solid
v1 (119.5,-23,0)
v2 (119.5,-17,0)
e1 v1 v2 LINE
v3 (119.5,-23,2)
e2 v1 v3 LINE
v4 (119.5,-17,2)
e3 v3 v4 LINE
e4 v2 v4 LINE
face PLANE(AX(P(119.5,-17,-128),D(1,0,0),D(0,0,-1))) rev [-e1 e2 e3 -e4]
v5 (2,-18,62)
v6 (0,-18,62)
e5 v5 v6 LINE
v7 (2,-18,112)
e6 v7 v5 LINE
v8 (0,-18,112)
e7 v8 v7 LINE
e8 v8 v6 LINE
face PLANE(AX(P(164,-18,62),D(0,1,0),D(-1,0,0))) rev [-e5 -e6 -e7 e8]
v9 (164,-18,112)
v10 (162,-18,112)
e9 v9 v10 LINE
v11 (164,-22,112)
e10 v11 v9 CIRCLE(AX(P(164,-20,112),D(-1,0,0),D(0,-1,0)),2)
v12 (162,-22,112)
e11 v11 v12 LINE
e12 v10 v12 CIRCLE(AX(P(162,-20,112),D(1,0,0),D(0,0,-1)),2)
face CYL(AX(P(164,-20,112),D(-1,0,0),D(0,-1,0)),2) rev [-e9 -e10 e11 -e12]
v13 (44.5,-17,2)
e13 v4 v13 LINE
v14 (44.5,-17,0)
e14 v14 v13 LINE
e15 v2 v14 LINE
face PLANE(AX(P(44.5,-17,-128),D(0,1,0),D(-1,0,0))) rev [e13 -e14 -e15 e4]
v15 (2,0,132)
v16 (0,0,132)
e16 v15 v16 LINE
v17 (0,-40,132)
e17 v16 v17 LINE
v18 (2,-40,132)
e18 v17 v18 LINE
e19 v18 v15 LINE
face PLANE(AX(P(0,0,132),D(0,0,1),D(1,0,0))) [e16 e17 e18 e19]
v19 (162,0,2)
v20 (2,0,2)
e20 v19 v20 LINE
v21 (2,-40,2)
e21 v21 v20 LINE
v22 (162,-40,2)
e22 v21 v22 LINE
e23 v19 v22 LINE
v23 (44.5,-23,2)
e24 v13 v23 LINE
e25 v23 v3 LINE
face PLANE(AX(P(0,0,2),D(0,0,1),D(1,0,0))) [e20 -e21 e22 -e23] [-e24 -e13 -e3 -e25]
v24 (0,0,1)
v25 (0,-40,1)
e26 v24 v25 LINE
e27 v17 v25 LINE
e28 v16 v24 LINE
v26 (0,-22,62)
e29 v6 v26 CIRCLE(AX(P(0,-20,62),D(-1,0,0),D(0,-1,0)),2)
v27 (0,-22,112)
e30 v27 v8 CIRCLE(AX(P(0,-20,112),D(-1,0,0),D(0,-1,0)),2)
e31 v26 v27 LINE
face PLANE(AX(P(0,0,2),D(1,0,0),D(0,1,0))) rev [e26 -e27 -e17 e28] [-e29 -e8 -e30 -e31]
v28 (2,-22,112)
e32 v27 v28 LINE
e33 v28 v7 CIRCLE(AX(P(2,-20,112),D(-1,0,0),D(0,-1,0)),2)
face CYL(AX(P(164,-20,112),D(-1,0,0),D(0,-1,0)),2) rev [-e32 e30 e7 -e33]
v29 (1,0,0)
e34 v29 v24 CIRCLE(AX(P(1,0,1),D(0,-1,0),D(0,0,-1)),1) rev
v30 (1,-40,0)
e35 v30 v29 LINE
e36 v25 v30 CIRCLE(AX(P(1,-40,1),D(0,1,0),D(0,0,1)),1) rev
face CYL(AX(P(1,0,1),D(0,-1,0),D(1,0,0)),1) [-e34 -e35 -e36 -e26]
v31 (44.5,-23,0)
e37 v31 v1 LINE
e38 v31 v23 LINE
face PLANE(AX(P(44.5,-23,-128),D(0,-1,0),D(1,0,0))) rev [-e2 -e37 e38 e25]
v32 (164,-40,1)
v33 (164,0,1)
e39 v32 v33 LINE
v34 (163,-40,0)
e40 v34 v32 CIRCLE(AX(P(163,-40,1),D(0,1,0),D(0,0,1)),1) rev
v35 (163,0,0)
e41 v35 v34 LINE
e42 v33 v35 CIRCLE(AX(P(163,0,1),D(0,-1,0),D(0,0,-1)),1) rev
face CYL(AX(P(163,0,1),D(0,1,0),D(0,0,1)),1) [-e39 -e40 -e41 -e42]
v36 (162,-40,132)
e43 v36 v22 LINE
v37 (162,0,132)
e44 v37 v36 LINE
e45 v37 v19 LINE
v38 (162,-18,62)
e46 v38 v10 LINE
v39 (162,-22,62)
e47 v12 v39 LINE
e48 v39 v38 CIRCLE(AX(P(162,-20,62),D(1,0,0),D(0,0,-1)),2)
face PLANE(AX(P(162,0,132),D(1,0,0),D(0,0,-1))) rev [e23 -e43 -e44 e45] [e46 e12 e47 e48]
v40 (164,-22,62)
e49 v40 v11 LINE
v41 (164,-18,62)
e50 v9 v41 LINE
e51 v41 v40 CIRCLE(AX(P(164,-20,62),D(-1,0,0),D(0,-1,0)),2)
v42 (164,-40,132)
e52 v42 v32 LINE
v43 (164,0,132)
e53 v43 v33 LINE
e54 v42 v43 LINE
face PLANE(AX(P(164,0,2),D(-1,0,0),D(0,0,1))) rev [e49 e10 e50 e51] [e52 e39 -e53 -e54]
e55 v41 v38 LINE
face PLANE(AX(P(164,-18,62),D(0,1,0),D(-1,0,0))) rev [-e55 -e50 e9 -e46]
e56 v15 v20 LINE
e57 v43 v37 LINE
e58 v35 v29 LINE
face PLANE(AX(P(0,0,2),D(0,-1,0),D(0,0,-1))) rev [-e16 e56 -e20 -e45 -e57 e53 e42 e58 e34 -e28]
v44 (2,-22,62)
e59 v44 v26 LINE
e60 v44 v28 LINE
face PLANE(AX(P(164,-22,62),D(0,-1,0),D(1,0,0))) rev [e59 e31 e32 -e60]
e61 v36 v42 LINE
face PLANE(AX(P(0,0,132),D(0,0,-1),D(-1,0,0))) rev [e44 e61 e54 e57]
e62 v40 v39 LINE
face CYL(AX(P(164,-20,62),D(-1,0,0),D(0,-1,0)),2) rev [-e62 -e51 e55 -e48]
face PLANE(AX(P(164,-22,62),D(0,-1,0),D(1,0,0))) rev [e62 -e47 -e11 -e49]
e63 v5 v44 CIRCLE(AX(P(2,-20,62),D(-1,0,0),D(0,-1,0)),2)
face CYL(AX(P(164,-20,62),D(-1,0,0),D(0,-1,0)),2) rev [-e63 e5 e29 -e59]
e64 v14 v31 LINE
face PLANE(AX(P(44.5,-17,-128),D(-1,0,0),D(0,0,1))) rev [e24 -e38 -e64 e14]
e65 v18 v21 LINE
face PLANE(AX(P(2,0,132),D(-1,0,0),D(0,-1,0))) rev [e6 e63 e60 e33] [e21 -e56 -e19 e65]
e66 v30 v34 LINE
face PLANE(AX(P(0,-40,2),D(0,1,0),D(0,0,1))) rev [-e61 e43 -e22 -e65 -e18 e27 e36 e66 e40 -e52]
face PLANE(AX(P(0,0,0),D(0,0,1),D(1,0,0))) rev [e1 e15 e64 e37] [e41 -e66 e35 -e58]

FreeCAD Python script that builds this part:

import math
import FreeCAD as App
import Part
import Sketcher

V = App.Vector


def edges_at(feature, points):
    """Names of the edges that pass closest to the given points."""
    edges = feature.Shape.Edges
    near = lambda p: min(range(len(edges)), key=lambda i: edges[i].distToShape(Part.Vertex(*p))[0])
    return sorted({f"Edge{near(p) + 1}" for p in points})


def add_polygon(sketch, points):
    """Adds a closed chain of lines whose ends are joined by coincident constraints."""
    first, n = sketch.GeometryCount, len(points)
    for a, b in zip(points, points[1:] + points[:1]):
        sketch.addGeometry(Part.LineSegment(App.Vector(*a, 0), App.Vector(*b, 0)), False)
    for i in range(n):
        sketch.addConstraint(Sketcher.Constraint("Coincident", first + i, 2, first + (i + 1) % n, 1))

doc = App.newDocument("Part")
params = doc.addObject("Spreadsheet::Sheet", "Params")
for row, (alias, value) in enumerate([
    ("sketch1_width", "164 mm"),
    ("sketch1_height", "40 mm"),
    ("pad1_length", "2 mm"),
    ("sketch2_width", "2 mm"),
    ("sketch2_height", "40 mm"),
    ("pad2_length", "130 mm"),
    ("sketch3_width", "2 mm"),
    ("sketch3_height", "40 mm"),
    ("pad3_length", "130 mm"),
    ("sketch4_diameter", "4 mm"),
    ("fillet_radius", "1 mm"),
    ("fillet2_radius", "1 mm"),
    ("sketch5_width", "75 mm"),
    ("sketch5_height", "6 mm"),
    ("pocket2_length", "130 mm"),
    ("sketch6_radius", "2 mm"),
    ("sketch6_height", "50 mm"),
], start=1):
    params.set(f"A{row}", alias)
    params.set(f"B{row}", "=" + value)
    params.setAlias(f"B{row}", alias)

body = doc.addObject("PartDesign::Body", "Body")

# Sketch on XY plane
sketch1 = body.newObject("Sketcher::SketchObject", "Sketch")
sketch1.AttachmentSupport = (doc.getObject("XY_Plane"), [""])
sketch1.MapMode = "FlatFace"
add_polygon(sketch1, [(0, 0), (0, -40), (164, -40), (164, 0)])  # lines 0-3
sketch1.addConstraint(Sketcher.Constraint("Vertical", 0))
sketch1.addConstraint(Sketcher.Constraint("Horizontal", 1))
sketch1.addConstraint(Sketcher.Constraint("Vertical", 2))
sketch1.addConstraint(Sketcher.Constraint("Horizontal", 3))
sketch1.addConstraint(Sketcher.Constraint("Coincident", 3, 2, -1, 1))
sketch1.addConstraint(Sketcher.Constraint("DistanceX", 1, 1, 1, 2, 164.0))
sketch1.addConstraint(Sketcher.Constraint("DistanceY", 0, 2, 0, 1, 40.0))
sketch1.setExpression("Constraints[9]", "Params.sketch1_width")
sketch1.setExpression("Constraints[10]", "Params.sketch1_height")
pad1 = body.newObject("PartDesign::Pad", "Pad")
pad1.Profile = sketch1
pad1.setExpression("Length", "Params.pad1_length")

# Sketch on XY plane
sketch2 = body.newObject("Sketcher::SketchObject", "Sketch001")
sketch2.AttachmentSupport = (doc.getObject("XY_Plane"), [""])
sketch2.MapMode = "FlatFace"
sketch2.AttachmentOffset = App.Placement(V(0, 0, 2), App.Rotation())
add_polygon(sketch2, [(0, 0), (0, -40), (2, -40), (2, 0)])  # lines 0-3
sketch2.addConstraint(Sketcher.Constraint("Vertical", 0))
sketch2.addConstraint(Sketcher.Constraint("Horizontal", 1))
sketch2.addConstraint(Sketcher.Constraint("Vertical", 2))
sketch2.addConstraint(Sketcher.Constraint("Horizontal", 3))
sketch2.addConstraint(Sketcher.Constraint("Coincident", 3, 2, -1, 1))
sketch2.addConstraint(Sketcher.Constraint("DistanceX", 1, 1, 1, 2, 2.0))
sketch2.addConstraint(Sketcher.Constraint("DistanceY", 0, 2, 0, 1, 40.0))
sketch2.setExpression("Constraints[9]", "Params.sketch2_width")
sketch2.setExpression("Constraints[10]", "Params.sketch2_height")
pad2 = body.newObject("PartDesign::Pad", "Pad001")
pad2.Profile = sketch2
pad2.setExpression("Length", "Params.pad2_length")

# Sketch on XY plane
sketch3 = body.newObject("Sketcher::SketchObject", "Sketch002")
sketch3.AttachmentSupport = (doc.getObject("XY_Plane"), [""])
sketch3.MapMode = "FlatFace"
sketch3.AttachmentOffset = App.Placement(V(0, 0, 2), App.Rotation())
add_polygon(sketch3, [(162, 0), (162, -40), (164, -40), (164, 0)])  # lines 0-3
sketch3.addConstraint(Sketcher.Constraint("Vertical", 0))
sketch3.addConstraint(Sketcher.Constraint("Horizontal", 1))
sketch3.addConstraint(Sketcher.Constraint("Vertical", 2))
sketch3.addConstraint(Sketcher.Constraint("Horizontal", 3))
sketch3.addConstraint(Sketcher.Constraint("PointOnObject", 2, 2, -1))
sketch3.addConstraint(Sketcher.Constraint("DistanceX", 1, 1, 1, 2, 2.0))
sketch3.addConstraint(Sketcher.Constraint("DistanceY", 0, 2, 0, 1, 40.0))
sketch3.addConstraint(Sketcher.Constraint("DistanceX", -1, 1, 0, 2, 162.0))
sketch3.setExpression("Constraints[9]", "Params.sketch3_width")
sketch3.setExpression("Constraints[10]", "Params.sketch3_height")
pad3 = body.newObject("PartDesign::Pad", "Pad002")
pad3.Profile = sketch3
pad3.setExpression("Length", "Params.pad3_length")

# Sketch on YZ plane
sketch4 = body.newObject("Sketcher::SketchObject", "Sketch003")
sketch4.AttachmentSupport = (doc.getObject("YZ_Plane"), [""])
sketch4.MapMode = "FlatFace"
sketch4.addGeometry(Part.Circle(V(-20, 112, 0), V(0, 0, 1), 2), False)
sketch4.addConstraint(Sketcher.Constraint("Diameter", 0, 4.0))
sketch4.addConstraint(Sketcher.Constraint("DistanceX", 0, 3, -1, 1, 20.0))
sketch4.addConstraint(Sketcher.Constraint("DistanceY", -1, 1, 0, 3, 112.0))
sketch4.setExpression("Constraints[0]", "Params.sketch4_diameter")
pocket1 = body.newObject("PartDesign::Pocket", "Pocket")
pocket1.Profile = sketch4
pocket1.Type = "ThroughAll"
pocket1.Reversed = True
doc.recompute()

fillet = body.newObject("PartDesign::Fillet", "Fillet")
fillet.Base = (pocket1, edges_at(pocket1, [(0, -20, 0)]))
fillet.setExpression("Radius", "Params.fillet_radius")
doc.recompute()

fillet2 = body.newObject("PartDesign::Fillet", "Fillet001")
fillet2.Base = (fillet, edges_at(fillet, [(164, -20, 0)]))
fillet2.setExpression("Radius", "Params.fillet2_radius")

# Sketch on XY plane
sketch5 = body.newObject("Sketcher::SketchObject", "Sketch004")
sketch5.AttachmentSupport = (doc.getObject("XY_Plane"), [""])
sketch5.MapMode = "FlatFace"
sketch5.AttachmentOffset = App.Placement(V(0, 0, 2), App.Rotation())
add_polygon(sketch5, [(44.5, -17), (44.5, -23), (119.5, -23), (119.5, -17)])  # lines 0-3
sketch5.addConstraint(Sketcher.Constraint("Vertical", 0))
sketch5.addConstraint(Sketcher.Constraint("Horizontal", 1))
sketch5.addConstraint(Sketcher.Constraint("Vertical", 2))
sketch5.addConstraint(Sketcher.Constraint("Horizontal", 3))
sketch5.addConstraint(Sketcher.Constraint("DistanceX", 1, 1, 1, 2, 75.0))
sketch5.addConstraint(Sketcher.Constraint("DistanceY", 0, 2, 0, 1, 6.0))
sketch5.addConstraint(Sketcher.Constraint("DistanceY", 0, 2, -1, 1, 23.0))
sketch5.addConstraint(Sketcher.Constraint("DistanceX", -1, 1, 0, 2, 44.5))
sketch5.setExpression("Constraints[8]", "Params.sketch5_width")
sketch5.setExpression("Constraints[9]", "Params.sketch5_height")
pocket2 = body.newObject("PartDesign::Pocket", "Pocket001")
pocket2.Profile = sketch5
pocket2.setExpression("Length", "Params.pocket2_length")

# Sketch on YZ plane
sketch6 = body.newObject("Sketcher::SketchObject", "Sketch005")
sketch6.AttachmentSupport = (doc.getObject("YZ_Plane"), [""])
sketch6.MapMode = "FlatFace"
sketch6.addGeometry(Part.LineSegment(V(-18, 112, 0), V(-18, 62, 0)), False)
sketch6.addGeometry(Part.ArcOfCircle(Part.Circle(V(-20, 62, 0), V(0, 0, 1), 2), math.radians(180), math.radians(360)), False)
sketch6.addGeometry(Part.LineSegment(V(-22, 62, 0), V(-22, 112, 0)), False)
sketch6.addGeometry(Part.ArcOfCircle(Part.Circle(V(-20, 112, 0), V(0, 0, 1), 2), math.radians(0), math.radians(180)), False)
sketch6.addConstraint(Sketcher.Constraint("Tangent", 0, 2, 1, 2))
sketch6.addConstraint(Sketcher.Constraint("Tangent", 1, 1, 2, 1))
sketch6.addConstraint(Sketcher.Constraint("Tangent", 2, 2, 3, 2))
sketch6.addConstraint(Sketcher.Constraint("Tangent", 3, 1, 0, 1))
sketch6.addConstraint(Sketcher.Constraint("Vertical", 0))
sketch6.addConstraint(Sketcher.Constraint("Vertical", 2))
sketch6.addConstraint(Sketcher.Constraint("Radius", 1, 2.0))
sketch6.addConstraint(Sketcher.Constraint("DistanceY", 0, 2, 0, 1, 50.0))
sketch6.addConstraint(Sketcher.Constraint("DistanceX", 1, 3, -1, 1, 20.0))
sketch6.addConstraint(Sketcher.Constraint("DistanceY", -1, 1, 1, 3, 62.0))
sketch6.setExpression("Constraints[6]", "Params.sketch6_radius")
sketch6.setExpression("Constraints[7]", "Params.sketch6_height")
pocket3 = body.newObject("PartDesign::Pocket", "Pocket002")
pocket3.Profile = sketch6
pocket3.Type = "ThroughAll"
pocket3.Reversed = True

doc.recompute()
